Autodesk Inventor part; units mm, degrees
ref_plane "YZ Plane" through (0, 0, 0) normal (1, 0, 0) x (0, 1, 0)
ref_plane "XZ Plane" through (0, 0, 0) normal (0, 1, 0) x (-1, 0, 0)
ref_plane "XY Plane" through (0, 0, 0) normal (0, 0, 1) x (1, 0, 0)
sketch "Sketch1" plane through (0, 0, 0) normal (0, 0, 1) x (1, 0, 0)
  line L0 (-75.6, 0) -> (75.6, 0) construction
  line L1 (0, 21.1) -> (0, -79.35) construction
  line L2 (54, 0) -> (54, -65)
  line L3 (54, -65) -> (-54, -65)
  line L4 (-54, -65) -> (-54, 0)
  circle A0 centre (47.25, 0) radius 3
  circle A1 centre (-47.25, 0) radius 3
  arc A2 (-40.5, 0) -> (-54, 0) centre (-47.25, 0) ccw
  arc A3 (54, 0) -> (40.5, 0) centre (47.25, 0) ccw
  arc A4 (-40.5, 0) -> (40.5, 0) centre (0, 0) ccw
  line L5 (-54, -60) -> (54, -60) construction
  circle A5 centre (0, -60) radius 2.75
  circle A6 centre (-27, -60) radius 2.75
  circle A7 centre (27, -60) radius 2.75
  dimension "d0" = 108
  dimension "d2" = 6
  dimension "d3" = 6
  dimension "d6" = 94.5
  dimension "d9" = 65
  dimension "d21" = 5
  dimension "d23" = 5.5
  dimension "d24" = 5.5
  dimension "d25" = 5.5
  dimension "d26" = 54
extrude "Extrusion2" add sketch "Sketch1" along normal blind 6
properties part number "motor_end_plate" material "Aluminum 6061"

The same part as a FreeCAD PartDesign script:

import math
import FreeCAD as App
import Part
import Sketcher

doc = App.newDocument("Part")
body = doc.addObject("PartDesign::Body", "Body")

# Sketch on XY plane
sketch1 = body.newObject("Sketcher::SketchObject", "Sketch")
sketch1.AttachmentSupport = (doc.getObject("XY_Plane"), [""])
sketch1.MapMode = "FlatFace"
sketch1.addGeometry([
    Part.LineSegment(App.Vector(54, -65, 0), App.Vector(54, 0, 0)),  # 0
    Part.ArcOfCircle(Part.Circle(App.Vector(47.25, 0, 0), App.Vector(0, 0, 1), 6.75), math.radians(0), math.radians(180)),  # 1
    Part.ArcOfCircle(Part.Circle(App.Vector(0, 0, 0), App.Vector(0, 0, 1), 40.5), math.radians(180), math.radians(360)),  # 2
    Part.ArcOfCircle(Part.Circle(App.Vector(-47.25, 0, 0), App.Vector(0, 0, 1), 6.75), math.radians(0), math.radians(180)),  # 3
    Part.LineSegment(App.Vector(-54, 0, 0), App.Vector(-54, -65, 0)),  # 4
    Part.LineSegment(App.Vector(-54, -65, 0), App.Vector(54, -65, 0)),  # 5
    Part.Circle(App.Vector(-27, -60, 0), App.Vector(0, 0, 1), 2.75),  # 6
    Part.Circle(App.Vector(0, -60, 0), App.Vector(0, 0, 1), 2.75),  # 7
    Part.Circle(App.Vector(27, -60, 0), App.Vector(0, 0, 1), 2.75),  # 8
    Part.Circle(App.Vector(-47.25, 0, 0), App.Vector(0, 0, 1), 3),  # 9
    Part.Circle(App.Vector(47.25, 0, 0), App.Vector(0, 0, 1), 3),  # 10
], False)
sketch1.addConstraint([
    Sketcher.Constraint("Tangent", 0, 2, 1, 1),
    Sketcher.Constraint("Tangent", 1, 2, 2, 2),
    Sketcher.Constraint("Tangent", 2, 1, 3, 1),
    Sketcher.Constraint("Tangent", 3, 2, 4, 1),
    Sketcher.Constraint("Coincident", 4, 2, 5, 1),
    Sketcher.Constraint("Coincident", 5, 2, 0, 1),
    Sketcher.Constraint("Vertical", 0),
    Sketcher.Constraint("Vertical", 4),
    Sketcher.Constraint("Horizontal", 5),
    Sketcher.Constraint("Coincident", 2, 3, -1, 1),
    Sketcher.Constraint("Coincident", 9, 3, 3, 3),
    Sketcher.Constraint("Coincident", 10, 3, 1, 3),
    Sketcher.Constraint("Equal", 1, 3),
    Sketcher.Constraint("Equal", 6, 7),
    Sketcher.Constraint("Equal", 7, 8),
    Sketcher.Constraint("Equal", 9, 10),
    Sketcher.Constraint("Symmetric", 6, 3, 8, 3, -2),
    Sketcher.Constraint("PointOnObject", 1, 3, -1),
    Sketcher.Constraint("PointOnObject", 3, 3, -1),
    Sketcher.Constraint("PointOnObject", 7, 3, -2),
    Sketcher.Constraint("Horizontal", 6, 3, 7, 3),
    Sketcher.Constraint("Diameter", 9, 6.0),
    Sketcher.Constraint("Diameter", 6, 5.5),
    Sketcher.Constraint("DistanceX", 5, 1, 5, 2, 108.0),
    Sketcher.Constraint("DistanceY", 0, 1, 0, 2, 65.0),
    Sketcher.Constraint("DistanceX", 6, 3, 8, 3, 54.0),
    Sketcher.Constraint("DistanceY", 4, 2, 6, 3, 5.0),
    Sketcher.Constraint("Radius", 2, 40.5),
])
pad1 = body.newObject("PartDesign::Pad", "Pad")
pad1.Profile = sketch1
pad1.Length = 6

doc.recompute()
